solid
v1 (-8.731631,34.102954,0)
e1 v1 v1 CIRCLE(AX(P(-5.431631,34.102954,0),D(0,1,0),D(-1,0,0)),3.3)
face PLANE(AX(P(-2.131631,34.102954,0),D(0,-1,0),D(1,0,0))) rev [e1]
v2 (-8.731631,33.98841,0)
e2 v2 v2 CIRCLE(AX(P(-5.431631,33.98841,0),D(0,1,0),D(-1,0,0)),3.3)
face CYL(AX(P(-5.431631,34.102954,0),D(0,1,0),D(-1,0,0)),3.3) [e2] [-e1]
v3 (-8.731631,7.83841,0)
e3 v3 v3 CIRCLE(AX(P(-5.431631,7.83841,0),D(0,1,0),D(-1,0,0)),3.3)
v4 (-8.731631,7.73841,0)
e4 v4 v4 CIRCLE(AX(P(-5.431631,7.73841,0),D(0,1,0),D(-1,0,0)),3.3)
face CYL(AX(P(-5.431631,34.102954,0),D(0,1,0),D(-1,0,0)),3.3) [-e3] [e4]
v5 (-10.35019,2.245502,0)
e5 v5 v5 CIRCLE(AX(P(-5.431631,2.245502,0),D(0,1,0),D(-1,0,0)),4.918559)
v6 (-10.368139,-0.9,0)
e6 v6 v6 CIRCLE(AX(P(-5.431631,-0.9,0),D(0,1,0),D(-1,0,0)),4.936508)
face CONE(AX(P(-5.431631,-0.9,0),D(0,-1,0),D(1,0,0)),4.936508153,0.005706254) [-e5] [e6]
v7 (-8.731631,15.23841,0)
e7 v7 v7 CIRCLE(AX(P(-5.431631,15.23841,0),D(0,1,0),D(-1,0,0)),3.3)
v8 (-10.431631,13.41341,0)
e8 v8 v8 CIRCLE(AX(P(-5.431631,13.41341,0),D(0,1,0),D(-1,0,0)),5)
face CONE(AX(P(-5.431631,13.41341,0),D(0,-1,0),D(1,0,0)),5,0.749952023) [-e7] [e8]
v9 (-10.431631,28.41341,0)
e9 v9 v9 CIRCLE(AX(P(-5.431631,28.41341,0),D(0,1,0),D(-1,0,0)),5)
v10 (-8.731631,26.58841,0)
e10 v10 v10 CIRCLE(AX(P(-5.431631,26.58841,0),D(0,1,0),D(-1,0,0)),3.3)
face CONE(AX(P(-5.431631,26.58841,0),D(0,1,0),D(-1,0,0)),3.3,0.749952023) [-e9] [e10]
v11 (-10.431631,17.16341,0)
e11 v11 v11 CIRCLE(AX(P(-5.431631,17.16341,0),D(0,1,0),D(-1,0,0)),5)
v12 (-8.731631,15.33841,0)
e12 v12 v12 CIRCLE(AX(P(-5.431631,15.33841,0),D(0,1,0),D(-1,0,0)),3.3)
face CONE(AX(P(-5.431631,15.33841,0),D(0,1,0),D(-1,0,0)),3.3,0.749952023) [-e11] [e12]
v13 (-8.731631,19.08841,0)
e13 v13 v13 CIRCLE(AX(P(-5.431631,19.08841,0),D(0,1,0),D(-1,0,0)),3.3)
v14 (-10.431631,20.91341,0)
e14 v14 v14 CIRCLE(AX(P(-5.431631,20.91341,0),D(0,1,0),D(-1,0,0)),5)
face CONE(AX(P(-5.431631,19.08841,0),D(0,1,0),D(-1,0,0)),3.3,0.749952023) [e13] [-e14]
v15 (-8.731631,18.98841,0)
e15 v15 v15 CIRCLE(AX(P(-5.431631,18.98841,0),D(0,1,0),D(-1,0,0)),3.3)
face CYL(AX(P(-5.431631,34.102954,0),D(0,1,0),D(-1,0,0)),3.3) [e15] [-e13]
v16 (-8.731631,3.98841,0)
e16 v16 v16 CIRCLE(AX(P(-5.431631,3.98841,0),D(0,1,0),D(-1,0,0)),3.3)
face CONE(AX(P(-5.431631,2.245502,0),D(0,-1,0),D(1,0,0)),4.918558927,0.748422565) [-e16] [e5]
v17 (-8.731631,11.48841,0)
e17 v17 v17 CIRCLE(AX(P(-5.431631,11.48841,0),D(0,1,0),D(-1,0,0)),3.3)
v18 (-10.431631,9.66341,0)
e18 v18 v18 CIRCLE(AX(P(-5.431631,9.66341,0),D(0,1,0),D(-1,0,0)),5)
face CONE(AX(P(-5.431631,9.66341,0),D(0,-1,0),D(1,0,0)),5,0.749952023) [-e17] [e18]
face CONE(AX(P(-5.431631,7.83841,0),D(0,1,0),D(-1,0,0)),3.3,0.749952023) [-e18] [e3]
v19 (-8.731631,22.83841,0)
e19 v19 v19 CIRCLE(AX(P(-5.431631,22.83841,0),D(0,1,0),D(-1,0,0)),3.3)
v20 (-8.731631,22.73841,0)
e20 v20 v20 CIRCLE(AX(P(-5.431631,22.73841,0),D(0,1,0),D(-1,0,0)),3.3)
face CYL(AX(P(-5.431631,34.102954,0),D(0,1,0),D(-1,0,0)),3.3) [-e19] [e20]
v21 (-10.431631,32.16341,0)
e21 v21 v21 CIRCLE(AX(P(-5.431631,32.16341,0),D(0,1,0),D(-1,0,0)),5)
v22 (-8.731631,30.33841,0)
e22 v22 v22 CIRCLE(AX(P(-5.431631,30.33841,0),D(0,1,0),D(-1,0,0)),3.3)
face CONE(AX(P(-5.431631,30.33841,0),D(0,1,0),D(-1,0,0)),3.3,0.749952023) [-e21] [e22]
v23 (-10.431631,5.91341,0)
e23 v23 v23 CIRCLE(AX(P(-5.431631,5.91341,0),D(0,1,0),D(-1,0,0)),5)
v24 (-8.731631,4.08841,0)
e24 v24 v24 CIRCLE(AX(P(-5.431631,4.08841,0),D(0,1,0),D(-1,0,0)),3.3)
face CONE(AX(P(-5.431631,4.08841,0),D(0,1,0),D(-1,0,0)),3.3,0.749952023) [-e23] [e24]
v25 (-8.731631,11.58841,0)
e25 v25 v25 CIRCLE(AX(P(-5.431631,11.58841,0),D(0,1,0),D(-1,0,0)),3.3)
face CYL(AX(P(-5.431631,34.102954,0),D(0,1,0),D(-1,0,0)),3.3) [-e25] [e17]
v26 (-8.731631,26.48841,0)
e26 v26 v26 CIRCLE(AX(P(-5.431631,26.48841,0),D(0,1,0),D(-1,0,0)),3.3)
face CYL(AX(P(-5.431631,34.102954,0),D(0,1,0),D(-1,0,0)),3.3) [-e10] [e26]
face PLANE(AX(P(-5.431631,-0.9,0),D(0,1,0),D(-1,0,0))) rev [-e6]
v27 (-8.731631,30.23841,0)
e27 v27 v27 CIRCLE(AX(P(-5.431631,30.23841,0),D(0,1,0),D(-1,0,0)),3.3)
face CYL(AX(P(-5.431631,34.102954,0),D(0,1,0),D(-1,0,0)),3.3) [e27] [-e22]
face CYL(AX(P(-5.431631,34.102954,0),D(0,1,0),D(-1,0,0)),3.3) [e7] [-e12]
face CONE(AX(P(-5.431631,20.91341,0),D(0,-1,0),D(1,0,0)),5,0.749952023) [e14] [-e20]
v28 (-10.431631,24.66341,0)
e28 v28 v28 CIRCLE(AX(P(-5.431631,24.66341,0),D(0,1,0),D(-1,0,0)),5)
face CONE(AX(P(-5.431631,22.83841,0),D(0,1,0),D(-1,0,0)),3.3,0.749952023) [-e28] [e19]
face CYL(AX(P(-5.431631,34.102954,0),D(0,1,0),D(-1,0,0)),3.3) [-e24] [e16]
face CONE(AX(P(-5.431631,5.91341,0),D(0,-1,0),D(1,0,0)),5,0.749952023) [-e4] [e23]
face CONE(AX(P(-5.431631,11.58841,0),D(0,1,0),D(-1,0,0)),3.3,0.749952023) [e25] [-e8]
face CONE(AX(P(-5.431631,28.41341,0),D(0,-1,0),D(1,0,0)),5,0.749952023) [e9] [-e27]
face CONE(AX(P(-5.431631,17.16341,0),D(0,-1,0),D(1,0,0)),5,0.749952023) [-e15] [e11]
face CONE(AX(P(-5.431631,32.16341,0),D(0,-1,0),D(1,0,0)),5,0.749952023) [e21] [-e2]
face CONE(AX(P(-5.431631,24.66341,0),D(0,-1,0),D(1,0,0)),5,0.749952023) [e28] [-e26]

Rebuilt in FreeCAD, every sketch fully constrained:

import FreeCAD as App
import Part
import Sketcher

doc = App.newDocument("Part")
body = doc.addObject("PartDesign::Body", "Body")

# Sketch on XY plane
sketch1 = body.newObject("Sketcher::SketchObject", "Sketch")
sketch1.AttachmentSupport = (doc.getObject("XY_Plane"), [""])
sketch1.MapMode = "FlatFace"
sketch1.addGeometry(Part.LineSegment(App.Vector(-2.13, 33.99, 0), App.Vector(-2.13, 34.1, 0)), False)
sketch1.addGeometry(Part.LineSegment(App.Vector(-2.13, 34.1, 0), App.Vector(-5.43, 34.1, 0)), False)
sketch1.addGeometry(Part.LineSegment(App.Vector(-5.43, 34.1, 0), App.Vector(-5.43, -0.9, 0)), False)
sketch1.addGeometry(Part.LineSegment(App.Vector(-5.43, -0.9, 0), App.Vector(-0.5, -0.9, 0)), False)
sketch1.addGeometry(Part.LineSegment(App.Vector(-0.5, -0.9, 0), App.Vector(-0.51, 2.25, 0)), False)
sketch1.addGeometry(Part.LineSegment(App.Vector(-0.51, 2.25, 0), App.Vector(-2.13, 3.99, 0)), False)
sketch1.addGeometry(Part.LineSegment(App.Vector(-2.13, 3.99, 0), App.Vector(-2.13, 4.09, 0)), False)
sketch1.addGeometry(Part.LineSegment(App.Vector(-2.13, 4.09, 0), App.Vector(-0.43, 5.91, 0)), False)
sketch1.addGeometry(Part.LineSegment(App.Vector(-0.43, 5.91, 0), App.Vector(-2.13, 7.74, 0)), False)
sketch1.addGeometry(Part.LineSegment(App.Vector(-2.13, 7.74, 0), App.Vector(-2.13, 7.84, 0)), False)
sketch1.addGeometry(Part.LineSegment(App.Vector(-2.13, 7.84, 0), App.Vector(-0.43, 9.66, 0)), False)
sketch1.addGeometry(Part.LineSegment(App.Vector(-0.43, 9.66, 0), App.Vector(-2.13, 11.49, 0)), False)
sketch1.addGeometry(Part.LineSegment(App.Vector(-2.13, 11.49, 0), App.Vector(-2.13, 11.59, 0)), False)
sketch1.addGeometry(Part.LineSegment(App.Vector(-2.13, 11.59, 0), App.Vector(-0.43, 13.41, 0)), False)
sketch1.addGeometry(Part.LineSegment(App.Vector(-0.43, 13.41, 0), App.Vector(-2.13, 15.24, 0)), False)
sketch1.addGeometry(Part.LineSegment(App.Vector(-2.13, 15.24, 0), App.Vector(-2.13, 15.34, 0)), False)
sketch1.addGeometry(Part.LineSegment(App.Vector(-2.13, 15.34, 0), App.Vector(-0.43, 17.16, 0)), False)
sketch1.addGeometry(Part.LineSegment(App.Vector(-0.43, 17.16, 0), App.Vector(-2.13, 18.99, 0)), False)
sketch1.addGeometry(Part.LineSegment(App.Vector(-2.13, 18.99, 0), App.Vector(-2.13, 19.09, 0)), False)
sketch1.addGeometry(Part.LineSegment(App.Vector(-2.13, 19.09, 0), App.Vector(-0.43, 20.91, 0)), False)
sketch1.addGeometry(Part.LineSegment(App.Vector(-0.43, 20.91, 0), App.Vector(-2.13, 22.74, 0)), False)
sketch1.addGeometry(Part.LineSegment(App.Vector(-2.13, 22.74, 0), App.Vector(-2.13, 22.84, 0)), False)
sketch1.addGeometry(Part.LineSegment(App.Vector(-2.13, 22.84, 0), App.Vector(-0.43, 24.66, 0)), False)
sketch1.addGeometry(Part.LineSegment(App.Vector(-0.43, 24.66, 0), App.Vector(-2.13, 26.49, 0)), False)
sketch1.addGeometry(Part.LineSegment(App.Vector(-2.13, 26.49, 0), App.Vector(-2.13, 26.59, 0)), False)
sketch1.addGeometry(Part.LineSegment(App.Vector(-2.13, 26.59, 0), App.Vector(-0.43, 28.41, 0)), False)
sketch1.addGeometry(Part.LineSegment(App.Vector(-0.43, 28.41, 0), App.Vector(-2.13, 30.24, 0)), False)
sketch1.addGeometry(Part.LineSegment(App.Vector(-2.13, 30.24, 0), App.Vector(-2.13, 30.34, 0)), False)
sketch1.addGeometry(Part.LineSegment(App.Vector(-2.13, 30.34, 0), App.Vector(-0.43, 32.16, 0)), False)
sketch1.addGeometry(Part.LineSegment(App.Vector(-0.43, 32.16, 0), App.Vector(-2.13, 33.99, 0)), False)
sketch1.addGeometry(Part.LineSegment(App.Vector(-5.43, 34.1, 0), App.Vector(-5.43, -0.9, 0)), True)  # axis
sketch1.addConstraint(Sketcher.Constraint("Coincident", 0, 2, 1, 1))
sketch1.addConstraint(Sketcher.Constraint("Coincident", 1, 2, 2, 1))
sketch1.addConstraint(Sketcher.Constraint("Coincident", 2, 2, 3, 1))
sketch1.addConstraint(Sketcher.Constraint("Coincident", 3, 2, 4, 1))
sketch1.addConstraint(Sketcher.Constraint("Coincident", 4, 2, 5, 1))
sketch1.addConstraint(Sketcher.Constraint("Coincident", 5, 2, 6, 1))
sketch1.addConstraint(Sketcher.Constraint("Coincident", 6, 2, 7, 1))
sketch1.addConstraint(Sketcher.Constraint("Coincident", 7, 2, 8, 1))
sketch1.addConstraint(Sketcher.Constraint("Coincident", 8, 2, 9, 1))
sketch1.addConstraint(Sketcher.Constraint("Coincident", 9, 2, 10, 1))
sketch1.addConstraint(Sketcher.Constraint("Coincident", 10, 2, 11, 1))
sketch1.addConstraint(Sketcher.Constraint("Coincident", 11, 2, 12, 1))
sketch1.addConstraint(Sketcher.Constraint("Coincident", 12, 2, 13, 1))
sketch1.addConstraint(Sketcher.Constraint("Coincident", 13, 2, 14, 1))
sketch1.addConstraint(Sketcher.Constraint("Coincident", 14, 2, 15, 1))
sketch1.addConstraint(Sketcher.Constraint("Coincident", 15, 2, 16, 1))
sketch1.addConstraint(Sketcher.Constraint("Coincident", 16, 2, 17, 1))
sketch1.addConstraint(Sketcher.Constraint("Coincident", 17, 2, 18, 1))
sketch1.addConstraint(Sketcher.Constraint("Coincident", 18, 2, 19, 1))
sketch1.addConstraint(Sketcher.Constraint("Coincident", 19, 2, 20, 1))
sketch1.addConstraint(Sketcher.Constraint("Coincident", 20, 2, 21, 1))
sketch1.addConstraint(Sketcher.Constraint("Coincident", 21, 2, 22, 1))
sketch1.addConstraint(Sketcher.Constraint("Coincident", 22, 2, 23, 1))
sketch1.addConstraint(Sketcher.Constraint("Coincident", 23, 2, 24, 1))
sketch1.addConstraint(Sketcher.Constraint("Coincident", 24, 2, 25, 1))
sketch1.addConstraint(Sketcher.Constraint("Coincident", 25, 2, 26, 1))
sketch1.addConstraint(Sketcher.Constraint("Coincident", 26, 2, 27, 1))
sketch1.addConstraint(Sketcher.Constraint("Coincident", 27, 2, 28, 1))
sketch1.addConstraint(Sketcher.Constraint("Coincident", 28, 2, 29, 1))
sketch1.addConstraint(Sketcher.Constraint("Coincident", 29, 2, 0, 1))
sketch1.addConstraint(Sketcher.Constraint("Vertical", 0))
sketch1.addConstraint(Sketcher.Constraint("Horizontal", 1))
sketch1.addConstraint(Sketcher.Constraint("Vertical", 2))
sketch1.addConstraint(Sketcher.Constraint("Horizontal", 3))
sketch1.addConstraint(Sketcher.Constraint("Vertical", 6))
sketch1.addConstraint(Sketcher.Constraint("Vertical", 9))
sketch1.addConstraint(Sketcher.Constraint("Vertical", 12))
sketch1.addConstraint(Sketcher.Constraint("Vertical", 15))
sketch1.addConstraint(Sketcher.Constraint("Vertical", 18))
sketch1.addConstraint(Sketcher.Constraint("Vertical", 21))
sketch1.addConstraint(Sketcher.Constraint("Vertical", 24))
sketch1.addConstraint(Sketcher.Constraint("Vertical", 27))
sketch1.addConstraint(Sketcher.Constraint("Vertical", 30))
sketch1.addConstraint(Sketcher.Constraint("Coincident", 30, 1, 1, 2))
sketch1.addConstraint(Sketcher.Constraint("Parallel", 7, 10))
sketch1.addConstraint(Sketcher.Constraint("Parallel", 8, 11))
sketch1.addConstraint(Sketcher.Constraint("Parallel", 10, 13))
sketch1.addConstraint(Sketcher.Constraint("Parallel", 11, 14))
sketch1.addConstraint(Sketcher.Constraint("Parallel", 13, 16))
sketch1.addConstraint(Sketcher.Constraint("Parallel", 14, 17))
sketch1.addConstraint(Sketcher.Constraint("Parallel", 16, 19))
sketch1.addConstraint(Sketcher.Constraint("Parallel", 17, 20))
sketch1.addConstraint(Sketcher.Constraint("Parallel", 19, 22))
sketch1.addConstraint(Sketcher.Constraint("Parallel", 20, 23))
sketch1.addConstraint(Sketcher.Constraint("Parallel", 22, 25))
sketch1.addConstraint(Sketcher.Constraint("Parallel", 23, 26))
sketch1.addConstraint(Sketcher.Constraint("Parallel", 25, 28))
sketch1.addConstraint(Sketcher.Constraint("Parallel", 26, 29))
sketch1.addConstraint(Sketcher.Constraint("Horizontal", 3, 2, 30, 2))
sketch1.addConstraint(Sketcher.Constraint("Vertical", 0, 2, 5, 2))
sketch1.addConstraint(Sketcher.Constraint("Vertical", 6, 2, 8, 2))
sketch1.addConstraint(Sketcher.Constraint("Vertical", 7, 2, 10, 2))
sketch1.addConstraint(Sketcher.Constraint("Vertical", 9, 2, 11, 2))
sketch1.addConstraint(Sketcher.Constraint("Vertical", 10, 2, 13, 2))
sketch1.addConstraint(Sketcher.Constraint("Vertical", 12, 2, 14, 2))
sketch1.addConstraint(Sketcher.Constraint("Vertical", 13, 2, 16, 2))
sketch1.addConstraint(Sketcher.Constraint("Vertical", 15, 2, 17, 2))
sketch1.addConstraint(Sketcher.Constraint("Vertical", 16, 2, 19, 2))
sketch1.addConstraint(Sketcher.Constraint("Vertical", 18, 2, 20, 2))
sketch1.addConstraint(Sketcher.Constraint("Vertical", 19, 2, 22, 2))
sketch1.addConstraint(Sketcher.Constraint("Vertical", 21, 2, 23, 2))
sketch1.addConstraint(Sketcher.Constraint("Vertical", 22, 2, 25, 2))
sketch1.addConstraint(Sketcher.Constraint("Vertical", 24, 2, 26, 2))
sketch1.addConstraint(Sketcher.Constraint("Vertical", 25, 2, 28, 2))
sketch1.addConstraint(Sketcher.Constraint("Equal", 6, 9))
sketch1.addConstraint(Sketcher.Constraint("Equal", 9, 12))
sketch1.addConstraint(Sketcher.Constraint("Equal", 12, 15))
sketch1.addConstraint(Sketcher.Constraint("Equal", 15, 18))
sketch1.addConstraint(Sketcher.Constraint("Equal", 18, 21))
sketch1.addConstraint(Sketcher.Constraint("Equal", 21, 24))
sketch1.addConstraint(Sketcher.Constraint("Equal", 24, 27))
sketch1.addConstraint(Sketcher.Constraint("Equal", 7, 8))
sketch1.addConstraint(Sketcher.Constraint("DistanceX", 1, 2, 1, 1, 3.3))
sketch1.addConstraint(Sketcher.Constraint("DistanceY", 6, 1, 6, 2, 0.1))
sketch1.addConstraint(Sketcher.Constraint("DistanceX", 2, 2, 7, 2, 5.0))
sketch1.addConstraint(Sketcher.Constraint("DistanceY", 2, 2, -1, 1, 0.9))
sketch1.addConstraint(Sketcher.Constraint("DistanceY", 6, 2, 11, 2, 7.4))
sketch1.addConstraint(Sketcher.Constraint("DistanceX", 3, 1, 3, 2, 4.936508))
sketch1.addConstraint(Sketcher.Constraint("DistanceY", -1, 1, 4, 2, 2.245502))
sketch1.addConstraint(Sketcher.Constraint("Distance", 5, 2.378542))
sketch1.addConstraint(Sketcher.Constraint("DistanceY", 0, 1, 0, 2, 0.114544))
sketch1.addConstraint(Sketcher.Constraint("DistanceY", 2, 2, 2, 1, 35.002954))
sketch1.addConstraint(Sketcher.Constraint("DistanceX", 0, 2, -1, 1, 2.131631))
revolution = body.newObject("PartDesign::Revolution", "Revolution")
revolution.Profile = sketch1
revolution.ReferenceAxis = (sketch1, ["Axis0"])
revolution.Angle = 360

doc.recompute()
